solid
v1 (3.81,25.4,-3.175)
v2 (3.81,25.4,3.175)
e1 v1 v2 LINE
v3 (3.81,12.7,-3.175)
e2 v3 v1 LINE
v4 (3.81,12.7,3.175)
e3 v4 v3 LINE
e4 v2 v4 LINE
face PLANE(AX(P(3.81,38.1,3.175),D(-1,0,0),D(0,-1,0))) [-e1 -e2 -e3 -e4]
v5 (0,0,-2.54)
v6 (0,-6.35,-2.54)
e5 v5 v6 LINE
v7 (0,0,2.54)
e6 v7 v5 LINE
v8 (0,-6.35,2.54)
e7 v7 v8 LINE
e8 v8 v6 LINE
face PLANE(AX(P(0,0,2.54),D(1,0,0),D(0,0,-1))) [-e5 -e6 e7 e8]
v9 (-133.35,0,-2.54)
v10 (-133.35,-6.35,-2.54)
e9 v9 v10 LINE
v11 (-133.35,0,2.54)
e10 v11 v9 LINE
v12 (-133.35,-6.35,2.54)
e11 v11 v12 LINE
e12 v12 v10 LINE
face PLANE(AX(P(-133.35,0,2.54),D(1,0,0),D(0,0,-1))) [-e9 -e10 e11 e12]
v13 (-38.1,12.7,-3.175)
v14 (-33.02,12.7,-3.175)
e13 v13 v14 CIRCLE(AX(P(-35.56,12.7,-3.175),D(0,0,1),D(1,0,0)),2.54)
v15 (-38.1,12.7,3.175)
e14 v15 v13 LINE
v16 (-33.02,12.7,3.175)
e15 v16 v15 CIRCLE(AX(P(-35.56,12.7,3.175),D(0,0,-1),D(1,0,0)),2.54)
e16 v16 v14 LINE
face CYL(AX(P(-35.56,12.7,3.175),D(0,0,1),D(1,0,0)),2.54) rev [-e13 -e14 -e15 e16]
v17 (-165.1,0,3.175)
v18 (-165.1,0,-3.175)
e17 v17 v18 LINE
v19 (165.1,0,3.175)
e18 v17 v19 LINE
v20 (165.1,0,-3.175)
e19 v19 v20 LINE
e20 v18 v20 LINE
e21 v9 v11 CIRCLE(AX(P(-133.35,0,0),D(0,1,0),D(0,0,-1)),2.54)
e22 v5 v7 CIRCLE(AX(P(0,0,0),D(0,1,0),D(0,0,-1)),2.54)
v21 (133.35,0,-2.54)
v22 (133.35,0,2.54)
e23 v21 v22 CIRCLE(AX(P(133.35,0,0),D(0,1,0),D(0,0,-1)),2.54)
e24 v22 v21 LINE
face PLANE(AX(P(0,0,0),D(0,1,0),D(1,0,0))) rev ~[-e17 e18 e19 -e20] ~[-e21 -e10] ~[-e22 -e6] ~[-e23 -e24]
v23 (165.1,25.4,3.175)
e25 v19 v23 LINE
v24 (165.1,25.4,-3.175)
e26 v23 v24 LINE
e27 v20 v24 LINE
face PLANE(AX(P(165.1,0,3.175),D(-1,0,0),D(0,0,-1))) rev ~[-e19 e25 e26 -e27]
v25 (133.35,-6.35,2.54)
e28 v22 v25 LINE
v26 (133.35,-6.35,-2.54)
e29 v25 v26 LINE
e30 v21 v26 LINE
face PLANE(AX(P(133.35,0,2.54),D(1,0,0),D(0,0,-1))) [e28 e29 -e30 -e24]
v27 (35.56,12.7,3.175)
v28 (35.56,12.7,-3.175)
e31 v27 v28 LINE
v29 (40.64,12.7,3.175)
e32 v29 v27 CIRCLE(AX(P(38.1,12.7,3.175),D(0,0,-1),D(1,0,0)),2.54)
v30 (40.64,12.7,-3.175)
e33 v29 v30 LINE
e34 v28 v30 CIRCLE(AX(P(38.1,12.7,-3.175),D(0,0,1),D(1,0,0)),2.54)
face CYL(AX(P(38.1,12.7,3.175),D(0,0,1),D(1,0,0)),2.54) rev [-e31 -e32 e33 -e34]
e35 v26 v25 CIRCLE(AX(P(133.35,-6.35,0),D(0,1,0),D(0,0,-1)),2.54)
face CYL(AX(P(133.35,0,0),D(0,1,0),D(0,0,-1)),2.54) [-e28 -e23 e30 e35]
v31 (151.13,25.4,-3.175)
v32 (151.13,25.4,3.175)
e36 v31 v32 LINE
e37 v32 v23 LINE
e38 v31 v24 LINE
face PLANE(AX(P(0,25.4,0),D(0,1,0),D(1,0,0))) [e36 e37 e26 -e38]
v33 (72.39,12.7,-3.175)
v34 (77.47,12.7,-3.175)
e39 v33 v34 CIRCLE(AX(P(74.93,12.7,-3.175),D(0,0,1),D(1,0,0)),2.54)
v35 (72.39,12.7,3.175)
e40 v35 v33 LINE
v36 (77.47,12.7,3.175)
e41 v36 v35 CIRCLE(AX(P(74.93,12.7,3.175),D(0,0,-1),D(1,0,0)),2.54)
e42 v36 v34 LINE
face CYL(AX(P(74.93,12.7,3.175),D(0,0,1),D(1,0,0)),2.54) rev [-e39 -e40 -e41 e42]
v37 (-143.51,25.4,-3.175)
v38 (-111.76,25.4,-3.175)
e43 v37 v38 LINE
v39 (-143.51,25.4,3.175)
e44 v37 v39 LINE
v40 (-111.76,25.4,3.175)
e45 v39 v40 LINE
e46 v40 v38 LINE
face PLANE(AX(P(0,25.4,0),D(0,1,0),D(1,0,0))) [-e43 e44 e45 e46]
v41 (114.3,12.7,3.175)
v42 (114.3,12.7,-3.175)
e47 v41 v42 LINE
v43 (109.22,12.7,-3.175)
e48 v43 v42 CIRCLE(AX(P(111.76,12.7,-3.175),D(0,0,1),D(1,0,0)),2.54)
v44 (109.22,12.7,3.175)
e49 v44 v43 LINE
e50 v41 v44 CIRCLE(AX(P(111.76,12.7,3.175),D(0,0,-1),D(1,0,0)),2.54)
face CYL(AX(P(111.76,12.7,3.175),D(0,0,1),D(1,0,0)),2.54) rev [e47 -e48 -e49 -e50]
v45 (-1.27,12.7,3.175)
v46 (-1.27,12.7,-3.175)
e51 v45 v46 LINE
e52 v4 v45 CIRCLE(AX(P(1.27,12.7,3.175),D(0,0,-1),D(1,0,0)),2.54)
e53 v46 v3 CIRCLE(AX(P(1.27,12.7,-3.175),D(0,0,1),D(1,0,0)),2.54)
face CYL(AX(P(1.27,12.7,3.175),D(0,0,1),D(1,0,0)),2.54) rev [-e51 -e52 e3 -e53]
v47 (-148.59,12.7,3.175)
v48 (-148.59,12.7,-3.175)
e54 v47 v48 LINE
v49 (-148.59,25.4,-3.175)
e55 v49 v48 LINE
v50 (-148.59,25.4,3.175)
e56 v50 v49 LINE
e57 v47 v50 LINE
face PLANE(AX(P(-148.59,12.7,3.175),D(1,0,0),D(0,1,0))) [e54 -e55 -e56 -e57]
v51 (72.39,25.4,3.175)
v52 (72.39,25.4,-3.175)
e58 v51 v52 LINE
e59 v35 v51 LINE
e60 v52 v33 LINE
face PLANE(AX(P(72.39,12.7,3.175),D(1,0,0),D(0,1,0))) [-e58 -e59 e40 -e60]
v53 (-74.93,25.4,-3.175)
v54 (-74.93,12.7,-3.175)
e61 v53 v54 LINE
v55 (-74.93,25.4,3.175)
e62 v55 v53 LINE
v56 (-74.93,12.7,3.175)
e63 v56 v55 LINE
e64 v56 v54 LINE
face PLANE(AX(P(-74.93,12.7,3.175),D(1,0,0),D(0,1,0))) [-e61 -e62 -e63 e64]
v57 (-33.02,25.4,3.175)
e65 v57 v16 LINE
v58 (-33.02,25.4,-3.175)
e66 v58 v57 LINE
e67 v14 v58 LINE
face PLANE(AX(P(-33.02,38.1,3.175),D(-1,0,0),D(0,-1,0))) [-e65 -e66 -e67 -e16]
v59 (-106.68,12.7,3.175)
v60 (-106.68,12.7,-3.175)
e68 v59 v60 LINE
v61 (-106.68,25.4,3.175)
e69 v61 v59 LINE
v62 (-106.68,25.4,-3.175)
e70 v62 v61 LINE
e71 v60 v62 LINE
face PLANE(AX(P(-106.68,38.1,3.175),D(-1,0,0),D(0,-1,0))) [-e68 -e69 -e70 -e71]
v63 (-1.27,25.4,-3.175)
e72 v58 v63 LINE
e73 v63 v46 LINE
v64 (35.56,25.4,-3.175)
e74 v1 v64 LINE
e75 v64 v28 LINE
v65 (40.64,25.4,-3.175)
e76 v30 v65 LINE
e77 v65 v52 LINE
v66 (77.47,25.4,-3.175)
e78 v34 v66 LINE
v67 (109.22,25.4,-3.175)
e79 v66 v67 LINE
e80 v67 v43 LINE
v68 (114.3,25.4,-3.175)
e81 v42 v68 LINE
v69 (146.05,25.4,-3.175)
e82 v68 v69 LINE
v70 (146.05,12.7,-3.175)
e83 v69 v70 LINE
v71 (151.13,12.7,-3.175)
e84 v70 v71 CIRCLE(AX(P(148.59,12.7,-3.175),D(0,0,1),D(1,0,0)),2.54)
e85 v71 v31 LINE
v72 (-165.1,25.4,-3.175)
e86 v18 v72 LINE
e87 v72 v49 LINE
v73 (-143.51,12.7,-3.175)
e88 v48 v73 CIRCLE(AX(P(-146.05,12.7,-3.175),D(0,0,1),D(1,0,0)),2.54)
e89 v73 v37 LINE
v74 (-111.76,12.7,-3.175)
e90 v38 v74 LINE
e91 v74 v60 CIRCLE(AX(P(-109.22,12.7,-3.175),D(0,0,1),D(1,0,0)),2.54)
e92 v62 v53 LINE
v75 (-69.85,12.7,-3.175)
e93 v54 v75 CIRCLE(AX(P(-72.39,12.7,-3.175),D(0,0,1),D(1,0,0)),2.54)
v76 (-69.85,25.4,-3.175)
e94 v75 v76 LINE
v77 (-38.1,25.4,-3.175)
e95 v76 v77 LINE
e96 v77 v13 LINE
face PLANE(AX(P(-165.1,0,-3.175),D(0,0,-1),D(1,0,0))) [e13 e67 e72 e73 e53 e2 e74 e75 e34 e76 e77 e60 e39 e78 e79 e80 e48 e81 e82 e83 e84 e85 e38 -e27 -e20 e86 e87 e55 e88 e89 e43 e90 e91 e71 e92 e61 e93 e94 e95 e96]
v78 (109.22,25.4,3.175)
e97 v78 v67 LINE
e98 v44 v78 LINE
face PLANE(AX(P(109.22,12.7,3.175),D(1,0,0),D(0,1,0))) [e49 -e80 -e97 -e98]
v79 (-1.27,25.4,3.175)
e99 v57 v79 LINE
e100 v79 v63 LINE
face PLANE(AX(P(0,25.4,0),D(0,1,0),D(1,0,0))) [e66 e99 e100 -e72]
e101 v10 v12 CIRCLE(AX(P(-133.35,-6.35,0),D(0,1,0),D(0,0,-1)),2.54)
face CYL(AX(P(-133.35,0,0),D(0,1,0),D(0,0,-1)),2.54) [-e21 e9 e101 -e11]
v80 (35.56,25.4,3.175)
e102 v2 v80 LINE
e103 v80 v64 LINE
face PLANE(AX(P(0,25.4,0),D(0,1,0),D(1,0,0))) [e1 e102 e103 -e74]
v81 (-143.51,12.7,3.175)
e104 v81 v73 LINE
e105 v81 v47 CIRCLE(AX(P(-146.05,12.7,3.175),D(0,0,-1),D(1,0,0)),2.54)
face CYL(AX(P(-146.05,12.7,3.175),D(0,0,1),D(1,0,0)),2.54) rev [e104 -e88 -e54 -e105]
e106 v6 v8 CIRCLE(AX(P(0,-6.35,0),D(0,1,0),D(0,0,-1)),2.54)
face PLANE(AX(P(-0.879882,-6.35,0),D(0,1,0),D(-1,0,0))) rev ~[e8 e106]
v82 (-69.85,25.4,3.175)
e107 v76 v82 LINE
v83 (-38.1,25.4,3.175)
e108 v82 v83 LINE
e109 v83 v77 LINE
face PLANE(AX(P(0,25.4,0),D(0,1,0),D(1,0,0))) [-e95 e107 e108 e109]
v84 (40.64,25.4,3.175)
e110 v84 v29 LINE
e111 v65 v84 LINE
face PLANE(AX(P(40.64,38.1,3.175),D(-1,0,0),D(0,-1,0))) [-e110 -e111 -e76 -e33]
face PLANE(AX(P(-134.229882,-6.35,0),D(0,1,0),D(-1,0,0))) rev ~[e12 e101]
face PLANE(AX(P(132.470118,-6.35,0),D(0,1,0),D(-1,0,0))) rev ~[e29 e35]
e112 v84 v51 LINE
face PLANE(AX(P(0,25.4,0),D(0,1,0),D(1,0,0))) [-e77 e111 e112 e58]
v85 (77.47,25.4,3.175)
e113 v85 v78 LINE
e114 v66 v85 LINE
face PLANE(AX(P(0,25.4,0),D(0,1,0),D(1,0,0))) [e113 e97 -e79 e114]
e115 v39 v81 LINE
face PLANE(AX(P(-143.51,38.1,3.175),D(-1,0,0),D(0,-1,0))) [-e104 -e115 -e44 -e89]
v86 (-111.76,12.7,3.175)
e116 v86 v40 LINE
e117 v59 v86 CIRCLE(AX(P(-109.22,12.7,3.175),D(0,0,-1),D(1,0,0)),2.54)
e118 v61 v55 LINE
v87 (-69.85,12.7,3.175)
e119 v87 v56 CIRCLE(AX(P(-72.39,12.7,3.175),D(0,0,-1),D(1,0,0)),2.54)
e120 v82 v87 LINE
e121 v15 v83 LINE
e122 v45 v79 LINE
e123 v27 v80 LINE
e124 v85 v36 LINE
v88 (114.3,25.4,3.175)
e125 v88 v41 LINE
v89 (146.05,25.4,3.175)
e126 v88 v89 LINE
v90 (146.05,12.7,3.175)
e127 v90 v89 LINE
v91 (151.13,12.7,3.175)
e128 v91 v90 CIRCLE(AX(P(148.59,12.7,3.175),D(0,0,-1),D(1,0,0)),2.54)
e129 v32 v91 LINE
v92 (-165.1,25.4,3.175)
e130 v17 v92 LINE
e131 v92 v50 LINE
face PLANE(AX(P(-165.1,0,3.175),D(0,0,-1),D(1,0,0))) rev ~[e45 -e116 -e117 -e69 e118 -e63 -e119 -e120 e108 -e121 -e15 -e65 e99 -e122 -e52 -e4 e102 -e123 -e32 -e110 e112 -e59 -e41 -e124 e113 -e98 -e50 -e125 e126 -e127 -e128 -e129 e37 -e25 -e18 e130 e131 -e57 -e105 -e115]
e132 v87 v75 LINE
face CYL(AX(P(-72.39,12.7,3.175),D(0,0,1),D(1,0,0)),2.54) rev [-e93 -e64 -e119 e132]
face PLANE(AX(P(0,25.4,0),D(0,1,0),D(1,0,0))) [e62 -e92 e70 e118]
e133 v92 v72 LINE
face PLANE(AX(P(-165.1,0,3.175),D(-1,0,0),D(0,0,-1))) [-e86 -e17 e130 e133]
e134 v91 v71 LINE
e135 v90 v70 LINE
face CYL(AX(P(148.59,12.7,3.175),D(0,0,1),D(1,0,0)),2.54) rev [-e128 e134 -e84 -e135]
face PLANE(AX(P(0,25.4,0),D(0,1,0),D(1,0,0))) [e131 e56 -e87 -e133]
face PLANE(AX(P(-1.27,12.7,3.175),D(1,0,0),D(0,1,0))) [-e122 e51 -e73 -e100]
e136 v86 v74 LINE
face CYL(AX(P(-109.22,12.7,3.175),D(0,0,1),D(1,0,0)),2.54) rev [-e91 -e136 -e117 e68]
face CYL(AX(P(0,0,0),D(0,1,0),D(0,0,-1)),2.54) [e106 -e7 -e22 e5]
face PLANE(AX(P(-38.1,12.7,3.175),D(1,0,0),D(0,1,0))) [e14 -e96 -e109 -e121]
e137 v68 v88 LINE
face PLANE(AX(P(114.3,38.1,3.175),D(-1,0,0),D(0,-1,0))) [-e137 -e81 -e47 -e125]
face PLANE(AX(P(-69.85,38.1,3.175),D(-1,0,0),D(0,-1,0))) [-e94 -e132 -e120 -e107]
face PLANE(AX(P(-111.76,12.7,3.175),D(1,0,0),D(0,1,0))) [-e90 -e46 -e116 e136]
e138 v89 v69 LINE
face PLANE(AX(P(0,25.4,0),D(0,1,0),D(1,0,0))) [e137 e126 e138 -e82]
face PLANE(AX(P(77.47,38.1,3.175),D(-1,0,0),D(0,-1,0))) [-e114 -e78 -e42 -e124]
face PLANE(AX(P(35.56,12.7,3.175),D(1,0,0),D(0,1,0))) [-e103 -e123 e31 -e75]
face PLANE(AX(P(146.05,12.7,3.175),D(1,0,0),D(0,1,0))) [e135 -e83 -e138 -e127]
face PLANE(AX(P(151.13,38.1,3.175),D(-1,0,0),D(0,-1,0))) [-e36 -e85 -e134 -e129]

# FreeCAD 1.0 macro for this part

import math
import FreeCAD as App
import Part
import Sketcher

V = App.Vector
Q = App.Units.Quantity


def add_polygon(sketch, points):
    """Adds a closed chain of lines whose ends are joined by coincident constraints."""
    first, n = sketch.GeometryCount, len(points)
    for a, b in zip(points, points[1:] + points[:1]):
        sketch.addGeometry(Part.LineSegment(App.Vector(*a, 0), App.Vector(*b, 0)), False)
    for i in range(n):
        sketch.addConstraint(Sketcher.Constraint("Coincident", first + i, 2, first + (i + 1) % n, 1))

doc = App.newDocument("Part")
params = doc.addObject("Spreadsheet::Sheet", "Params")
for row, (alias, value) in enumerate([
    ("sketch1_width", "13 in"),
    ("sketch1_height", "0.25 in"),
    ("pad1_length", "1 in"),
    ("sketch2_radius", "0.1 in"),
    ("pad2_length", "0.25 in"),
    ("sketch3_radius", "0.1 in"),
    ("sketch3_height", "1 in"),
], start=1):
    params.set(f"A{row}", alias)
    params.set(f"B{row}", "=" + value)
    params.setAlias(f"B{row}", alias)

body = doc.addObject("PartDesign::Body", "Body")

# Sketch on XZ plane
sketch1 = doc.addObject("Sketcher::SketchObject", "Sketch")
body.addObject(sketch1)
sketch1.AttachmentSupport = (doc.XZ_Plane, [""])
sketch1.MapMode = "FlatFace"
add_polygon(sketch1, [(-165.1, -3.175), (-165.1, 3.175), (165.1, 3.175), (165.1, -3.175)])  # lines 0-3
sketch1.addConstraint([
    Sketcher.Constraint("Vertical", 0),
    Sketcher.Constraint("Horizontal", 1),
    Sketcher.Constraint("Vertical", 2),
    Sketcher.Constraint("Horizontal", 3),
    Sketcher.Constraint("Symmetric", 0, 2, 2, 2, -1, 1),
    Sketcher.Constraint("DistanceX", 1, 1, 1, 2, Q("13 in")),
    Sketcher.Constraint("DistanceY", 0, 1, 0, 2, Q("0.25 in")),
])
sketch1.setExpression("Constraints[9]", "Params.sketch1_width")
sketch1.setExpression("Constraints[10]", "Params.sketch1_height")
pad1 = doc.addObject("PartDesign::Pad", "Pad")
body.addObject(pad1)
pad1.Profile = sketch1
pad1.setExpression("Length", "Params.pad1_length")
pad1.Reversed = True

# Sketch on XZ plane
sketch2 = doc.addObject("Sketcher::SketchObject", "Sketch001")
body.addObject(sketch2)
sketch2.AttachmentSupport = (doc.XZ_Plane, [""])
sketch2.MapMode = "FlatFace"
sketch2.addGeometry([
    Part.LineSegment(V(-133.35, -2.54, 0), V(-133.35, 2.54, 0)),  # 0
    Part.ArcOfCircle(Part.Circle(V(-133.35, 0, 0), V(0, 0, 1), 2.54), math.radians(90), math.radians(270)),  # 1
    Part.LineSegment(V(0, -2.54, 0), V(0, 2.54, 0)),  # 2
    Part.ArcOfCircle(Part.Circle(V(0, 0, 0), V(0, 0, 1), 2.54), math.radians(90), math.radians(270)),  # 3
    Part.LineSegment(V(133.35, -2.54, 0), V(133.35, 2.54, 0)),  # 4
    Part.ArcOfCircle(Part.Circle(V(133.35, 0, 0), V(0, 0, 1), 2.54), math.radians(90), math.radians(270)),  # 5
], False)
sketch2.addConstraint([
    Sketcher.Constraint("Coincident", 0, 1, 1, 2),
    Sketcher.Constraint("Coincident", 1, 1, 0, 2),
    Sketcher.Constraint("Coincident", 2, 1, 3, 2),
    Sketcher.Constraint("Coincident", 3, 1, 2, 2),
    Sketcher.Constraint("Coincident", 4, 1, 5, 2),
    Sketcher.Constraint("Coincident", 5, 1, 4, 2),
    Sketcher.Constraint("Vertical", 0),
    Sketcher.Constraint("Vertical", 2),
    Sketcher.Constraint("Vertical", 4),
    Sketcher.Constraint("Coincident", 3, 3, -1, 1),
    Sketcher.Constraint("Equal", 1, 3),
    Sketcher.Constraint("Equal", 3, 5),
    Sketcher.Constraint("Symmetric", 1, 3, 5, 3, -1, 1),
    Sketcher.Constraint("Symmetric", 0, 1, 4, 1, -2),
    Sketcher.Constraint("PointOnObject", 2, 1, -2),
    Sketcher.Constraint("Vertical", 1, 3, 0, 1),
    Sketcher.Constraint("Radius", 1, Q("0.1 in")),
    Sketcher.Constraint("DistanceX", 1, 3, 5, 3, Q("10.5 in")),
])
sketch2.setExpression("Constraints[16]", "Params.sketch2_radius")
pad2 = doc.addObject("PartDesign::Pad", "Pad001")
body.addObject(pad2)
pad2.Profile = sketch2
pad2.setExpression("Length", "Params.pad2_length")

# Sketch on XY plane
sketch3 = doc.addObject("Sketcher::SketchObject", "Sketch002")
body.addObject(sketch3)
sketch3.AttachmentSupport = (doc.XY_Plane, [""])
sketch3.MapMode = "FlatFace"
sketch3.AttachmentOffset = App.Placement(V(0, 0, 0.125 * 25.4), App.Rotation())
sketch3.addGeometry([
    Part.LineSegment(V(-143.51, 12.7, 0), V(-143.51, 38.1, 0)),  # 0
    Part.ArcOfCircle(Part.Circle(V(-146.05, 38.1, 0), V(0, 0, 1), 2.54), math.radians(0), math.radians(180)),  # 1
    Part.LineSegment(V(-148.59, 38.1, 0), V(-148.59, 12.7, 0)),  # 2
    Part.ArcOfCircle(Part.Circle(V(-146.05, 12.7, 0), V(0, 0, 1), 2.54), math.radians(180), math.radians(360)),  # 3
    Part.LineSegment(V(-106.68, 12.7, 0), V(-106.68, 38.1, 0)),  # 4
    Part.ArcOfCircle(Part.Circle(V(-109.22, 38.1, 0), V(0, 0, 1), 2.54), math.radians(0), math.radians(180)),  # 5
    Part.LineSegment(V(-111.76, 38.1, 0), V(-111.76, 12.7, 0)),  # 6
    Part.ArcOfCircle(Part.Circle(V(-109.22, 12.7, 0), V(0, 0, 1), 2.54), math.radians(180), math.radians(360)),  # 7
    Part.LineSegment(V(-69.85, 12.7, 0), V(-69.85, 38.1, 0)),  # 8
    Part.ArcOfCircle(Part.Circle(V(-72.39, 38.1, 0), V(0, 0, 1), 2.54), math.radians(0), math.radians(180)),  # 9
    Part.LineSegment(V(-74.93, 38.1, 0), V(-74.93, 12.7, 0)),  # 10
    Part.ArcOfCircle(Part.Circle(V(-72.39, 12.7, 0), V(0, 0, 1), 2.54), math.radians(180), math.radians(360)),  # 11
    Part.LineSegment(V(-33.02, 12.7, 0), V(-33.02, 38.1, 0)),  # 12
    Part.ArcOfCircle(Part.Circle(V(-35.56, 38.1, 0), V(0, 0, 1), 2.54), math.radians(0), math.radians(180)),  # 13
    Part.LineSegment(V(-38.1, 38.1, 0), V(-38.1, 12.7, 0)),  # 14
    Part.ArcOfCircle(Part.Circle(V(-35.56, 12.7, 0), V(0, 0, 1), 2.54), math.radians(180), math.radians(360)),  # 15
    Part.LineSegment(V(3.81, 12.7, 0), V(3.81, 38.1, 0)),  # 16
    Part.ArcOfCircle(Part.Circle(V(1.27, 38.1, 0), V(0, 0, 1), 2.54), math.radians(0), math.radians(180)),  # 17
    Part.LineSegment(V(-1.27, 38.1, 0), V(-1.27, 12.7, 0)),  # 18
    Part.ArcOfCircle(Part.Circle(V(1.27, 12.7, 0), V(0, 0, 1), 2.54), math.radians(180), math.radians(360)),  # 19
    Part.LineSegment(V(40.64, 12.7, 0), V(40.64, 38.1, 0)),  # 20
    Part.ArcOfCircle(Part.Circle(V(38.1, 38.1, 0), V(0, 0, 1), 2.54), math.radians(0), math.radians(180)),  # 21
    Part.LineSegment(V(35.56, 38.1, 0), V(35.56, 12.7, 0)),  # 22
    Part.ArcOfCircle(Part.Circle(V(38.1, 12.7, 0), V(0, 0, 1), 2.54), math.radians(180), math.radians(360)),  # 23
    Part.LineSegment(V(77.47, 12.7, 0), V(77.47, 38.1, 0)),  # 24
    Part.ArcOfCircle(Part.Circle(V(74.93, 38.1, 0), V(0, 0, 1), 2.54), math.radians(0), math.radians(180)),  # 25
    Part.LineSegment(V(72.39, 38.1, 0), V(72.39, 12.7, 0)),  # 26
    Part.ArcOfCircle(Part.Circle(V(74.93, 12.7, 0), V(0, 0, 1), 2.54), math.radians(180), math.radians(360)),  # 27
    Part.LineSegment(V(114.3, 12.7, 0), V(114.3, 38.1, 0)),  # 28
    Part.ArcOfCircle(Part.Circle(V(111.76, 38.1, 0), V(0, 0, 1), 2.54), math.radians(0), math.radians(180)),  # 29
    Part.LineSegment(V(109.22, 38.1, 0), V(109.22, 12.7, 0)),  # 30
    Part.ArcOfCircle(Part.Circle(V(111.76, 12.7, 0), V(0, 0, 1), 2.54), math.radians(180), math.radians(360)),  # 31
    Part.LineSegment(V(151.13, 12.7, 0), V(151.13, 38.1, 0)),  # 32
    Part.ArcOfCircle(Part.Circle(V(148.59, 38.1, 0), V(0, 0, 1), 2.54), math.radians(0), math.radians(180)),  # 33
    Part.LineSegment(V(146.05, 38.1, 0), V(146.05, 12.7, 0)),  # 34
    Part.ArcOfCircle(Part.Circle(V(148.59, 12.7, 0), V(0, 0, 1), 2.54), math.radians(180), math.radians(360)),  # 35
], False)
sketch3.addConstraint([
    Sketcher.Constraint("Tangent", 0, 2, 1, 1),
    Sketcher.Constraint("Tangent", 1, 2, 2, 1),
    Sketcher.Constraint("Tangent", 2, 2, 3, 1),
    Sketcher.Constraint("Tangent", 3, 2, 0, 1),
    Sketcher.Constraint("Tangent", 4, 2, 5, 1),
    Sketcher.Constraint("Tangent", 5, 2, 6, 1),
    Sketcher.Constraint("Tangent", 6, 2, 7, 1),
    Sketcher.Constraint("Tangent", 7, 2, 4, 1),
    Sketcher.Constraint("Tangent", 8, 2, 9, 1),
    Sketcher.Constraint("Tangent", 9, 2, 10, 1),
    Sketcher.Constraint("Tangent", 10, 2, 11, 1),
    Sketcher.Constraint("Tangent", 11, 2, 8, 1),
    Sketcher.Constraint("Tangent", 12, 2, 13, 1),
    Sketcher.Constraint("Tangent", 13, 2, 14, 1),
    Sketcher.Constraint("Tangent", 14, 2, 15, 1),
    Sketcher.Constraint("Tangent", 15, 2, 12, 1),
    Sketcher.Constraint("Tangent", 16, 2, 17, 1),
    Sketcher.Constraint("Tangent", 17, 2, 18, 1),
    Sketcher.Constraint("Tangent", 18, 2, 19, 1),
    Sketcher.Constraint("Tangent", 19, 2, 16, 1),
    Sketcher.Constraint("Tangent", 20, 2, 21, 1),
    Sketcher.Constraint("Tangent", 21, 2, 22, 1),
    Sketcher.Constraint("Tangent", 22, 2, 23, 1),
    Sketcher.Constraint("Tangent", 23, 2, 20, 1),
    Sketcher.Constraint("Tangent", 24, 2, 25, 1),
    Sketcher.Constraint("Tangent", 25, 2, 26, 1),
    Sketcher.Constraint("Tangent", 26, 2, 27, 1),
    Sketcher.Constraint("Tangent", 27, 2, 24, 1),
    Sketcher.Constraint("Tangent", 28, 2, 29, 1),
    Sketcher.Constraint("Tangent", 29, 2, 30, 1),
    Sketcher.Constraint("Tangent", 30, 2, 31, 1),
    Sketcher.Constraint("Tangent", 31, 2, 28, 1),
    Sketcher.Constraint("Tangent", 32, 2, 33, 1),
    Sketcher.Constraint("Tangent", 33, 2, 34, 1),
    Sketcher.Constraint("Tangent", 34, 2, 35, 1),
    Sketcher.Constraint("Tangent", 35, 2, 32, 1),
    Sketcher.Constraint("Vertical", 0),
    Sketcher.Constraint("Vertical", 2),
    Sketcher.Constraint("Vertical", 4),
    Sketcher.Constraint("Vertical", 6),
    Sketcher.Constraint("Vertical", 8),
    Sketcher.Constraint("Vertical", 10),
    Sketcher.Constraint("Vertical", 12),
    Sketcher.Constraint("Vertical", 14),
    Sketcher.Constraint("Vertical", 16),
    Sketcher.Constraint("Vertical", 18),
    Sketcher.Constraint("Vertical", 20),
    Sketcher.Constraint("Vertical", 22),
    Sketcher.Constraint("Vertical", 24),
    Sketcher.Constraint("Vertical", 26),
    Sketcher.Constraint("Vertical", 28),
    Sketcher.Constraint("Vertical", 30),
    Sketcher.Constraint("Vertical", 32),
    Sketcher.Constraint("Vertical", 34),
    Sketcher.Constraint("Equal", 3, 5),
    Sketcher.Constraint("Equal", 7, 9),
    Sketcher.Constraint("Equal", 11, 13),
    Sketcher.Constraint("Equal", 15, 17),
    Sketcher.Constraint("Equal", 19, 21),
    Sketcher.Constraint("Equal", 23, 25),
    Sketcher.Constraint("Equal", 27, 29),
    Sketcher.Constraint("Equal", 31, 33),
    Sketcher.Constraint("Horizontal", 1, 3, 5, 3),
    Sketcher.Constraint("Horizontal", 3, 3, 7, 3),
    Sketcher.Constraint("Horizontal", 5, 3, 9, 3),
    Sketcher.Constraint("Horizontal", 7, 3, 11, 3),
    Sketcher.Constraint("Horizontal", 9, 3, 13, 3),
    Sketcher.Constraint("Horizontal", 11, 3, 15, 3),
    Sketcher.Constraint("Horizontal", 13, 3, 17, 3),
    Sketcher.Constraint("Horizontal", 15, 3, 19, 3),
    Sketcher.Constraint("Horizontal", 17, 3, 21, 3),
    Sketcher.Constraint("Horizontal", 19, 3, 23, 3),
    Sketcher.Constraint("Horizontal", 21, 3, 25, 3),
    Sketcher.Constraint("Horizontal", 23, 3, 27, 3),
    Sketcher.Constraint("Horizontal", 25, 3, 29, 3),
    Sketcher.Constraint("Horizontal", 27, 3, 31, 3),
    Sketcher.Constraint("Horizontal", 29, 3, 33, 3),
    Sketcher.Constraint("Horizontal", 31, 3, 35, 3),
    Sketcher.Constraint("Radius", 1, Q("0.1 in")),
    Sketcher.Constraint("DistanceY", 0, 1, 0, 2, Q("1 in")),
    Sketcher.Constraint("DistanceY", -1, 1, 1, 3, Q("1.5 in")),
    Sketcher.Constraint("DistanceX", 5, 3, -1, 1, Q("4.3 in")),
    Sketcher.Constraint("DistanceX", 13, 3, -1, 1, Q("1.4 in")),
    Sketcher.Constraint("DistanceX", -1, 1, 21, 3, Q("1.5 in")),
    Sketcher.Constraint("DistanceX", -1, 1, 29, 3, Q("4.4 in")),
    Sketcher.Constraint("DistanceX", 1, 3, 9, 3, Q("2.9 in")),
    Sketcher.Constraint("DistanceX", 9, 3, 17, 3, Q("2.9 in")),
    Sketcher.Constraint("DistanceX", 17, 3, 25, 3, Q("2.9 in")),
    Sketcher.Constraint("DistanceX", 25, 3, 33, 3, Q("2.9 in")),
    Sketcher.Constraint("DistanceX", 1, 3, -1, 1, Q("5.75 in")),
])
sketch3.setExpression("Constraints[78]", "Params.sketch3_radius")
sketch3.setExpression("Constraints[79]", "Params.sketch3_height")
pocket1 = doc.addObject("PartDesign::Pocket", "Pocket")
body.addObject(pocket1)
pocket1.Profile = sketch3
pocket1.Type = "ThroughAll"

doc.recompute()
